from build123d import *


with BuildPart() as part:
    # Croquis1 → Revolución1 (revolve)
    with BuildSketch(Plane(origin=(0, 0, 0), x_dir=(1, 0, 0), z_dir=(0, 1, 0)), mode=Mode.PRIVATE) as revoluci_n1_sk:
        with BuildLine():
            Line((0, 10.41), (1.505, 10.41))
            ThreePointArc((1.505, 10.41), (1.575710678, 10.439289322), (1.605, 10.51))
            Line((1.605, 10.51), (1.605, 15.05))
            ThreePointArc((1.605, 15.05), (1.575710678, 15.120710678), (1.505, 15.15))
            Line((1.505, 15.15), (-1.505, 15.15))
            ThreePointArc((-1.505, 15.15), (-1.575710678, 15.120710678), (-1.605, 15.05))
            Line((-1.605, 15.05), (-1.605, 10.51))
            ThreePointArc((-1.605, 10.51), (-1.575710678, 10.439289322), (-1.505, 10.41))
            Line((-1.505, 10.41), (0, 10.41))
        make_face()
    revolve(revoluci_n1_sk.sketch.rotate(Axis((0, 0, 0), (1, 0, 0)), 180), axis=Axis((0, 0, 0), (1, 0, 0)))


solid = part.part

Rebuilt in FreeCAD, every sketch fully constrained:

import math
import FreeCAD as App
import Part
import Sketcher

V = App.Vector
Q = App.Units.Quantity

doc = App.newDocument("Part")
body = doc.addObject("PartDesign::Body", "Body")

# Sketch on XZ plane
sketch1 = body.newObject("Sketcher::SketchObject", "Sketch")
sketch1.AttachmentSupport = (doc.getObject("XZ_Plane"), [""])
sketch1.MapMode = "FlatFace"
sketch1.addGeometry(Part.ArcOfCircle(Part.Circle(V(1.5, -10.51, 0), V(0, 0, 1), 0.1), math.radians(0), math.radians(90)), False)
sketch1.addGeometry(Part.LineSegment(V(1.6, -10.51, 0), V(1.6, -15.05, 0)), False)
sketch1.addGeometry(Part.ArcOfCircle(Part.Circle(V(1.5, -15.05, 0), V(0, 0, 1), 0.1), math.radians(-90), math.radians(0)), False)
sketch1.addGeometry(Part.LineSegment(V(1.5, -15.15, 0), V(-1.5, -15.15, 0)), False)
sketch1.addGeometry(Part.ArcOfCircle(Part.Circle(V(-1.5, -15.05, 0), V(0, 0, 1), 0.1), math.radians(180), math.radians(270)), False)
sketch1.addGeometry(Part.LineSegment(V(-1.6, -15.05, 0), V(-1.6, -10.51, 0)), False)
sketch1.addGeometry(Part.ArcOfCircle(Part.Circle(V(-1.5, -10.51, 0), V(0, 0, 1), 0.1), math.radians(90), math.radians(180)), False)
sketch1.addGeometry(Part.LineSegment(V(-1.5, -10.41, 0), V(1.5, -10.41, 0)), False)
sketch1.addConstraint(Sketcher.Constraint("Tangent", 0, 1, 1, 1))
sketch1.addConstraint(Sketcher.Constraint("Tangent", 1, 2, 2, 2))
sketch1.addConstraint(Sketcher.Constraint("Tangent", 2, 1, 3, 1))
sketch1.addConstraint(Sketcher.Constraint("Tangent", 3, 2, 4, 2))
sketch1.addConstraint(Sketcher.Constraint("Tangent", 4, 1, 5, 1))
sketch1.addConstraint(Sketcher.Constraint("Tangent", 5, 2, 6, 2))
sketch1.addConstraint(Sketcher.Constraint("Tangent", 6, 1, 7, 1))
sketch1.addConstraint(Sketcher.Constraint("Tangent", 7, 2, 0, 2))
sketch1.addConstraint(Sketcher.Constraint("Vertical", 1))
sketch1.addConstraint(Sketcher.Constraint("Horizontal", 3))
sketch1.addConstraint(Sketcher.Constraint("Vertical", 5))
sketch1.addConstraint(Sketcher.Constraint("Horizontal", 7))
sketch1.addConstraint(Sketcher.Constraint("Equal", 0, 2))
sketch1.addConstraint(Sketcher.Constraint("Equal", 2, 4))
sketch1.addConstraint(Sketcher.Constraint("Equal", 4, 6))
sketch1.addConstraint(Sketcher.Constraint("Radius", 0, Q("0.1 mm")))
sketch1.addConstraint(Sketcher.Constraint("DistanceX", 3, 2, 3, 1, Q("3.01 mm")))
sketch1.addConstraint(Sketcher.Constraint("DistanceY", 1, 2, 1, 1, Q("4.54 mm")))
sketch1.addConstraint(Sketcher.Constraint("DistanceY", 0, 3, -1, 1, Q("10.51 mm")))
sketch1.addConstraint(Sketcher.Constraint("DistanceX", -1, 1, 0, 3, Q("1.505 mm")))
revolution = body.newObject("PartDesign::Revolution", "Revolution")
revolution.Profile = sketch1
revolution.ReferenceAxis = (sketch1, ["H_Axis"])
revolution.Angle = 360

doc.recompute()
